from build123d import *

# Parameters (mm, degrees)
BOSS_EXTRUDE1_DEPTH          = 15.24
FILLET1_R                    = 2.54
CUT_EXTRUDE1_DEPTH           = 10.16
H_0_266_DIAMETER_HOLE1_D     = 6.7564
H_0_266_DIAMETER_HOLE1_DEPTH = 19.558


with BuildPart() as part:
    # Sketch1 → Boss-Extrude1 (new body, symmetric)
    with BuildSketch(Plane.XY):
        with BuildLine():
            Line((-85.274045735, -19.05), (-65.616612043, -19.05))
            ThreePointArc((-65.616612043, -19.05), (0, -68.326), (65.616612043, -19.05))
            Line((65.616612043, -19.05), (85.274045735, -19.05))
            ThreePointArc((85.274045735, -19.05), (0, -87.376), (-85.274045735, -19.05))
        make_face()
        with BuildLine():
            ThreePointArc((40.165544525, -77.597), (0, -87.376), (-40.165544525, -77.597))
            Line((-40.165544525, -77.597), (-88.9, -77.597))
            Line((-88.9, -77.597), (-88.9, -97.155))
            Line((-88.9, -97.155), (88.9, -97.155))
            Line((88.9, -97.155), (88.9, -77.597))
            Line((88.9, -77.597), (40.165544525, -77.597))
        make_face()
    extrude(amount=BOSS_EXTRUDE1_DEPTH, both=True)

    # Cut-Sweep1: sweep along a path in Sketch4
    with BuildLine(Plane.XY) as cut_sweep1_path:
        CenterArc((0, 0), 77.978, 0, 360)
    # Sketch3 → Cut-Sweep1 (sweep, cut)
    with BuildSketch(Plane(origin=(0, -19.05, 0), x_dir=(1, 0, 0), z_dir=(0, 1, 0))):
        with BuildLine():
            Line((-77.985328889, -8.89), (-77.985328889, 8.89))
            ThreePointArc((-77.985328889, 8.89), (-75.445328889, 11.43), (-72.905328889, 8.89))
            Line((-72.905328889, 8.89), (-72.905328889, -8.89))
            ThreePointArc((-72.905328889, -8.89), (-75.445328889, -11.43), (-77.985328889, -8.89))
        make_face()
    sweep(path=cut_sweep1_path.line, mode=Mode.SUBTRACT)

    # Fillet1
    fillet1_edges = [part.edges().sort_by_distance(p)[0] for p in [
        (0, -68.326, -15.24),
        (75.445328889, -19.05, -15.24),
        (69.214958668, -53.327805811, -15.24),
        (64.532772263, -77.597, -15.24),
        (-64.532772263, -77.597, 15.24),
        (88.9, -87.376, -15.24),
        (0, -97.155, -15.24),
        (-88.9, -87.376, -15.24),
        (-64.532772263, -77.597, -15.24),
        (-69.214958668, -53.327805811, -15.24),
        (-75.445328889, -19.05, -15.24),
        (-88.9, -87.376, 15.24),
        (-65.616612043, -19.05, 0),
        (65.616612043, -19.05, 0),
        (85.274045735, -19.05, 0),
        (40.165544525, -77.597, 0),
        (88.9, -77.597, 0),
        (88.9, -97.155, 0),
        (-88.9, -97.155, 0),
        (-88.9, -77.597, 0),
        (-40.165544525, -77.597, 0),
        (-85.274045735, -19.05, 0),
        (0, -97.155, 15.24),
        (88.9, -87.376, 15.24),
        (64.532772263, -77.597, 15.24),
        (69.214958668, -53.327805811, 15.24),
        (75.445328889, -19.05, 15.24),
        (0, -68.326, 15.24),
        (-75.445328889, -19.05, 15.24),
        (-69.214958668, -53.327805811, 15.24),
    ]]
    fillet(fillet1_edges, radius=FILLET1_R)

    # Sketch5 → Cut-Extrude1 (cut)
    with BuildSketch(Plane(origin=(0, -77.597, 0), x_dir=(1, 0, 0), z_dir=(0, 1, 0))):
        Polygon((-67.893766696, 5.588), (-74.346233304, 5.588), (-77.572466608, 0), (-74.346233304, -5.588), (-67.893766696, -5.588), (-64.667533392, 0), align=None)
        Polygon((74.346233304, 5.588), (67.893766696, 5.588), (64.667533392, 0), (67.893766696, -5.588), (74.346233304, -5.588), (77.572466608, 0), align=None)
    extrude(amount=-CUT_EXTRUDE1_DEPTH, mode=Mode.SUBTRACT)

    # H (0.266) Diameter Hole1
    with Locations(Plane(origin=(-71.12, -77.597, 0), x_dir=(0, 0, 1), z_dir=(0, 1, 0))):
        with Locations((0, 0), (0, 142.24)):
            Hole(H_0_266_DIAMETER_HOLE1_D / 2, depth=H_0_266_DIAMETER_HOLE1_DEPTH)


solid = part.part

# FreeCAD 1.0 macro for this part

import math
import FreeCAD as App
import Part
import Sketcher
Q = App.Units.Quantity


def edges_at(feature, points):
    """Names of the edges that pass closest to the given points."""
    edges = feature.Shape.Edges
    near = lambda p: min(range(len(edges)), key=lambda i: edges[i].distToShape(Part.Vertex(*p))[0])
    return sorted({f"Edge{near(p) + 1}" for p in points})


def add_polygon(sketch, points):
    """Adds a closed chain of lines whose ends are joined by coincident constraints."""
    first, n = sketch.GeometryCount, len(points)
    for a, b in zip(points, points[1:] + points[:1]):
        sketch.addGeometry(Part.LineSegment(App.Vector(*a, 0), App.Vector(*b, 0)), False)
    for i in range(n):
        sketch.addConstraint(Sketcher.Constraint("Coincident", first + i, 2, first + (i + 1) % n, 1))

doc = App.newDocument("Part")
body = doc.addObject("PartDesign::Body", "Body")

sketch1 = body.newObject("Sketcher::SketchObject", "Sketch")
sketch1.AttachmentSupport = (doc.getObject("XY_Plane"), [""])
sketch1.MapMode = "FlatFace"
sketch1.addGeometry([
    Part.LineSegment(App.Vector(-66, -19, 0), App.Vector(-85, -19, 0)),
    Part.ArcOfCircle(Part.Circle(App.Vector(0, 0, 0), App.Vector(0, 0, 1), 87), math.radians(-167), math.radians(-117)),
    Part.LineSegment(App.Vector(-40, -78, 0), App.Vector(-89, -78, 0)),
    Part.LineSegment(App.Vector(-89, -78, 0), App.Vector(-89, -97, 0)),
    Part.LineSegment(App.Vector(-89, -97, 0), App.Vector(89, -97, 0)),
    Part.LineSegment(App.Vector(89, -97, 0), App.Vector(89, -78, 0)),
    Part.LineSegment(App.Vector(89, -78, 0), App.Vector(40, -78, 0)),
    Part.ArcOfCircle(Part.Circle(App.Vector(0, 0, 0), App.Vector(0, 0, 1), 87), math.radians(-63), math.radians(-13)),
    Part.LineSegment(App.Vector(85, -19, 0), App.Vector(66, -19, 0)),
    Part.ArcOfCircle(Part.Circle(App.Vector(0, 0, 0), App.Vector(0, 0, 1), 68), math.radians(-164), math.radians(-16)),
], False)
sketch1.addConstraint([
    Sketcher.Constraint("Coincident", 0, 2, 1, 1),
    Sketcher.Constraint("Coincident", 1, 2, 2, 1),
    Sketcher.Constraint("Coincident", 2, 2, 3, 1),
    Sketcher.Constraint("Coincident", 3, 2, 4, 1),
    Sketcher.Constraint("Coincident", 4, 2, 5, 1),
    Sketcher.Constraint("Coincident", 5, 2, 6, 1),
    Sketcher.Constraint("Coincident", 6, 2, 7, 1),
    Sketcher.Constraint("Coincident", 7, 2, 8, 1),
    Sketcher.Constraint("Coincident", 8, 2, 9, 2),
    Sketcher.Constraint("Coincident", 9, 1, 0, 1),
    Sketcher.Constraint("Horizontal", 0),
    Sketcher.Constraint("Horizontal", 2),
    Sketcher.Constraint("Vertical", 3),
    Sketcher.Constraint("Horizontal", 4),
    Sketcher.Constraint("Vertical", 5),
    Sketcher.Constraint("Horizontal", 6),
    Sketcher.Constraint("Horizontal", 8),
    Sketcher.Constraint("Coincident", 1, 3, -1, 1),
    Sketcher.Constraint("Coincident", 7, 3, -1, 1),
    Sketcher.Constraint("Coincident", 9, 3, -1, 1),
    Sketcher.Constraint("Equal", 1, 7),
    Sketcher.Constraint("Symmetric", 2, 2, 5, 2, -2),
    Sketcher.Constraint("Horizontal", 0, 2, 7, 2),
    Sketcher.Constraint("DistanceX", 4, 1, 4, 2, Q("7 in")),
    Sketcher.Constraint("Radius", 1, Q("3.44 in")),
    Sketcher.Constraint("Radius", 9, Q("2.69 in")),
    Sketcher.Constraint("DistanceY", 3, 2, 3, 1, Q("0.77 in")),
    Sketcher.Constraint("DistanceY", 0, 2, -1, 1, Q("0.75 in")),
    Sketcher.Constraint("DistanceY", 1, 2, -1, 1, Q("3.055 in")),
])
pad1 = body.newObject("PartDesign::Pad", "Pad")
pad1.Profile = sketch1
pad1.Length = Q("1.2 in")
pad1.Midplane = True

sketch2 = body.newObject("Sketcher::SketchObject", "Sketch001")
sketch2.AttachmentSupport = (doc.getObject("XZ_Plane"), [""])
sketch2.MapMode = "FlatFace"
sketch2.AttachmentOffset = App.Placement(App.Vector(0, 0, 0.75 * 25.4), App.Rotation())
sketch2.addGeometry([
    Part.LineSegment(App.Vector(-78, -8.9, 0), App.Vector(-78, 8.9, 0)),
    Part.ArcOfCircle(Part.Circle(App.Vector(-75.4, 8.9, 0), App.Vector(0, 0, 1), 2.5), math.radians(0), math.radians(180)),
    Part.LineSegment(App.Vector(-72.9, 8.9, 0), App.Vector(-72.9, -8.9, 0)),
    Part.ArcOfCircle(Part.Circle(App.Vector(-75.4, -8.9, 0), App.Vector(0, 0, 1), 2.5), math.radians(180), math.radians(360)),
], False)
sketch2.addConstraint([
    Sketcher.Constraint("Tangent", 0, 2, 1, 2),
    Sketcher.Constraint("Tangent", 1, 1, 2, 1),
    Sketcher.Constraint("Tangent", 2, 2, 3, 2),
    Sketcher.Constraint("Tangent", 3, 1, 0, 1),
    Sketcher.Constraint("Vertical", 0),
    Sketcher.Constraint("Vertical", 2),
    Sketcher.Constraint("Radius", 1, Q("0.1 in")),
    Sketcher.Constraint("DistanceY", 0, 1, 0, 2, Q("0.7 in")),
    Sketcher.Constraint("DistanceY", -1, 1, 1, 3, Q("0.35 in")),
    Sketcher.Constraint("DistanceX", 1, 3, -1, 1, Q("75.445329 mm")),
])

sketch3 = body.newObject("Sketcher::SketchObject", "Sketch002")
sketch3.AttachmentSupport = (doc.getObject("XY_Plane"), [""])
sketch3.MapMode = "FlatFace"
sketch3.addGeometry(Part.Circle(App.Vector(0, 0, 0), App.Vector(0, 0, 1), 78), False)
sketch3.addConstraint([
    Sketcher.Constraint("Coincident", 0, 3, -1, 1),
    Sketcher.Constraint("Diameter", 0, Q("6.14 in")),
])
doc.recompute()

subtractivepipe = body.newObject("PartDesign::SubtractivePipe", "SubtractivePipe")
subtractivepipe.Profile = sketch2
subtractivepipe.Spine = (sketch3, ["Edge1"])
doc.recompute()

fillet = body.newObject("PartDesign::Fillet", "Fillet")
fillet.Base = (subtractivepipe, edges_at(subtractivepipe, [
    (0, -68.326, -15.24),
    (75.445, -19.05, -15.24),
    (69.215, -53.328, -15.24),
    (64.533, -77.597, -15.24),
    (-64.533, -77.597, 15.24),
    (88.9, -87.376, -15.24),
    (0, -97.155, -15.24),
    (-88.9, -87.376, -15.24),
    (-64.533, -77.597, -15.24),
    (-69.215, -53.328, -15.24),
    (-75.445, -19.05, -15.24),
    (-88.9, -87.376, 15.24),
    (-65.617, -19.05, 0),
    (65.617, -19.05, 0),
    (85.274, -19.05, 0),
    (40.166, -77.597, 0),
    (88.9, -77.597, 0),
    (88.9, -97.155, 0),
    (-88.9, -97.155, 0),
    (-88.9, -77.597, 0),
    (-40.166, -77.597, 0),
    (-85.274, -19.05, 0),
    (0, -97.155, 15.24),
    (88.9, -87.376, 15.24),
    (64.533, -77.597, 15.24),
    (69.215, -53.328, 15.24),
    (75.445, -19.05, 15.24),
    (0, -68.326, 15.24),
    (-75.445, -19.05, 15.24),
    (-69.215, -53.328, 15.24),
]))
fillet.Radius = Q("0.1 in")

sketch4 = body.newObject("Sketcher::SketchObject", "Sketch003")
sketch4.AttachmentSupport = (doc.getObject("XZ_Plane"), [""])
sketch4.MapMode = "FlatFace"
sketch4.AttachmentOffset = App.Placement(App.Vector(0, 0, 3.055 * 25.4), App.Rotation())
add_polygon(sketch4, [(-68, -6), (-74, -6), (-78, 0), (-74, 6), (-68, 6), (-65, 0)])
add_polygon(sketch4, [(74, -6), (68, -6), (65, 0), (68, 6), (74, 6), (78, 0)])
sketch4.addConstraint([
    Sketcher.Constraint("Horizontal", 0),
    Sketcher.Constraint("Horizontal", 3),
    Sketcher.Constraint("Horizontal", 6),
    Sketcher.Constraint("Horizontal", 9),
    Sketcher.Constraint("Symmetric", 3, 2, 6, 2, -1, 1),
    Sketcher.Constraint("Symmetric", 4, 2, 7, 2, -1, 1),
    Sketcher.Constraint("Symmetric", 5, 2, 8, 2, -1, 1),
    Sketcher.Constraint("Symmetric", 1, 2, 10, 2, -1, 1),
    Sketcher.Constraint("Symmetric", 5, 2, 6, 2, -2),
    Sketcher.Constraint("PointOnObject", 1, 2, -1),
    Sketcher.Constraint("PointOnObject", 4, 2, -1),
    Sketcher.Constraint("Parallel", 1, 4),
    Sketcher.Constraint("Parallel", 2, 5),
    Sketcher.Constraint("Parallel", 7, 10),
    Sketcher.Constraint("Parallel", 8, 11),
    Sketcher.Constraint("Angle", 1, Q("120 deg")),
    Sketcher.Constraint("DistanceX", 0, 2, 6, 2, Q("5.6 in")),
    Sketcher.Constraint("DistanceY", 0, 2, -1, 1, Q("0.22 in")),
    Sketcher.Constraint("DistanceX", 1, 2, 3, 2, Q("9.6787 mm")),
])
pocket1 = body.newObject("PartDesign::Pocket", "Pocket")
pocket1.Profile = sketch4
pocket1.Length = Q("0.4 in")
pocket1.Reversed = True

sketch5 = body.newObject("Sketcher::SketchObject", "Sketch004")
sketch5.AttachmentSupport = (doc.getObject("XZ_Plane"), [""])
sketch5.MapMode = "FlatFace"
sketch5.AttachmentOffset = App.Placement(App.Vector(0, 0, 3.055 * 25.4), App.Rotation())
sketch5.addGeometry([
    Part.Circle(App.Vector(-71.1, 0, 0), App.Vector(0, 0, 1), 3.4),
    Part.Circle(App.Vector(71.1, 0, 0), App.Vector(0, 0, 1), 3.4),
], False)
sketch5.addConstraint([
    Sketcher.Constraint("Equal", 0, 1),
    Sketcher.Constraint("Symmetric", 0, 3, 1, 3, -1, 1),
    Sketcher.Constraint("PointOnObject", 0, 3, -1),
    Sketcher.Constraint("Diameter", 0, Q("0.266 in")),
    Sketcher.Constraint("DistanceX", 0, 3, -1, 1, Q("2.8 in")),
])
doc.recompute()
hole = body.newObject("PartDesign::Hole", "Hole")
hole.Profile = sketch5
hole.ThreadType = "None"
hole.Diameter = Q("0.266 in")
hole.DepthType = "Dimension"
hole.Depth = Q("0.77 in")
hole.DrillPoint = "Flat"
hole.Reversed = True

doc.recompute()
